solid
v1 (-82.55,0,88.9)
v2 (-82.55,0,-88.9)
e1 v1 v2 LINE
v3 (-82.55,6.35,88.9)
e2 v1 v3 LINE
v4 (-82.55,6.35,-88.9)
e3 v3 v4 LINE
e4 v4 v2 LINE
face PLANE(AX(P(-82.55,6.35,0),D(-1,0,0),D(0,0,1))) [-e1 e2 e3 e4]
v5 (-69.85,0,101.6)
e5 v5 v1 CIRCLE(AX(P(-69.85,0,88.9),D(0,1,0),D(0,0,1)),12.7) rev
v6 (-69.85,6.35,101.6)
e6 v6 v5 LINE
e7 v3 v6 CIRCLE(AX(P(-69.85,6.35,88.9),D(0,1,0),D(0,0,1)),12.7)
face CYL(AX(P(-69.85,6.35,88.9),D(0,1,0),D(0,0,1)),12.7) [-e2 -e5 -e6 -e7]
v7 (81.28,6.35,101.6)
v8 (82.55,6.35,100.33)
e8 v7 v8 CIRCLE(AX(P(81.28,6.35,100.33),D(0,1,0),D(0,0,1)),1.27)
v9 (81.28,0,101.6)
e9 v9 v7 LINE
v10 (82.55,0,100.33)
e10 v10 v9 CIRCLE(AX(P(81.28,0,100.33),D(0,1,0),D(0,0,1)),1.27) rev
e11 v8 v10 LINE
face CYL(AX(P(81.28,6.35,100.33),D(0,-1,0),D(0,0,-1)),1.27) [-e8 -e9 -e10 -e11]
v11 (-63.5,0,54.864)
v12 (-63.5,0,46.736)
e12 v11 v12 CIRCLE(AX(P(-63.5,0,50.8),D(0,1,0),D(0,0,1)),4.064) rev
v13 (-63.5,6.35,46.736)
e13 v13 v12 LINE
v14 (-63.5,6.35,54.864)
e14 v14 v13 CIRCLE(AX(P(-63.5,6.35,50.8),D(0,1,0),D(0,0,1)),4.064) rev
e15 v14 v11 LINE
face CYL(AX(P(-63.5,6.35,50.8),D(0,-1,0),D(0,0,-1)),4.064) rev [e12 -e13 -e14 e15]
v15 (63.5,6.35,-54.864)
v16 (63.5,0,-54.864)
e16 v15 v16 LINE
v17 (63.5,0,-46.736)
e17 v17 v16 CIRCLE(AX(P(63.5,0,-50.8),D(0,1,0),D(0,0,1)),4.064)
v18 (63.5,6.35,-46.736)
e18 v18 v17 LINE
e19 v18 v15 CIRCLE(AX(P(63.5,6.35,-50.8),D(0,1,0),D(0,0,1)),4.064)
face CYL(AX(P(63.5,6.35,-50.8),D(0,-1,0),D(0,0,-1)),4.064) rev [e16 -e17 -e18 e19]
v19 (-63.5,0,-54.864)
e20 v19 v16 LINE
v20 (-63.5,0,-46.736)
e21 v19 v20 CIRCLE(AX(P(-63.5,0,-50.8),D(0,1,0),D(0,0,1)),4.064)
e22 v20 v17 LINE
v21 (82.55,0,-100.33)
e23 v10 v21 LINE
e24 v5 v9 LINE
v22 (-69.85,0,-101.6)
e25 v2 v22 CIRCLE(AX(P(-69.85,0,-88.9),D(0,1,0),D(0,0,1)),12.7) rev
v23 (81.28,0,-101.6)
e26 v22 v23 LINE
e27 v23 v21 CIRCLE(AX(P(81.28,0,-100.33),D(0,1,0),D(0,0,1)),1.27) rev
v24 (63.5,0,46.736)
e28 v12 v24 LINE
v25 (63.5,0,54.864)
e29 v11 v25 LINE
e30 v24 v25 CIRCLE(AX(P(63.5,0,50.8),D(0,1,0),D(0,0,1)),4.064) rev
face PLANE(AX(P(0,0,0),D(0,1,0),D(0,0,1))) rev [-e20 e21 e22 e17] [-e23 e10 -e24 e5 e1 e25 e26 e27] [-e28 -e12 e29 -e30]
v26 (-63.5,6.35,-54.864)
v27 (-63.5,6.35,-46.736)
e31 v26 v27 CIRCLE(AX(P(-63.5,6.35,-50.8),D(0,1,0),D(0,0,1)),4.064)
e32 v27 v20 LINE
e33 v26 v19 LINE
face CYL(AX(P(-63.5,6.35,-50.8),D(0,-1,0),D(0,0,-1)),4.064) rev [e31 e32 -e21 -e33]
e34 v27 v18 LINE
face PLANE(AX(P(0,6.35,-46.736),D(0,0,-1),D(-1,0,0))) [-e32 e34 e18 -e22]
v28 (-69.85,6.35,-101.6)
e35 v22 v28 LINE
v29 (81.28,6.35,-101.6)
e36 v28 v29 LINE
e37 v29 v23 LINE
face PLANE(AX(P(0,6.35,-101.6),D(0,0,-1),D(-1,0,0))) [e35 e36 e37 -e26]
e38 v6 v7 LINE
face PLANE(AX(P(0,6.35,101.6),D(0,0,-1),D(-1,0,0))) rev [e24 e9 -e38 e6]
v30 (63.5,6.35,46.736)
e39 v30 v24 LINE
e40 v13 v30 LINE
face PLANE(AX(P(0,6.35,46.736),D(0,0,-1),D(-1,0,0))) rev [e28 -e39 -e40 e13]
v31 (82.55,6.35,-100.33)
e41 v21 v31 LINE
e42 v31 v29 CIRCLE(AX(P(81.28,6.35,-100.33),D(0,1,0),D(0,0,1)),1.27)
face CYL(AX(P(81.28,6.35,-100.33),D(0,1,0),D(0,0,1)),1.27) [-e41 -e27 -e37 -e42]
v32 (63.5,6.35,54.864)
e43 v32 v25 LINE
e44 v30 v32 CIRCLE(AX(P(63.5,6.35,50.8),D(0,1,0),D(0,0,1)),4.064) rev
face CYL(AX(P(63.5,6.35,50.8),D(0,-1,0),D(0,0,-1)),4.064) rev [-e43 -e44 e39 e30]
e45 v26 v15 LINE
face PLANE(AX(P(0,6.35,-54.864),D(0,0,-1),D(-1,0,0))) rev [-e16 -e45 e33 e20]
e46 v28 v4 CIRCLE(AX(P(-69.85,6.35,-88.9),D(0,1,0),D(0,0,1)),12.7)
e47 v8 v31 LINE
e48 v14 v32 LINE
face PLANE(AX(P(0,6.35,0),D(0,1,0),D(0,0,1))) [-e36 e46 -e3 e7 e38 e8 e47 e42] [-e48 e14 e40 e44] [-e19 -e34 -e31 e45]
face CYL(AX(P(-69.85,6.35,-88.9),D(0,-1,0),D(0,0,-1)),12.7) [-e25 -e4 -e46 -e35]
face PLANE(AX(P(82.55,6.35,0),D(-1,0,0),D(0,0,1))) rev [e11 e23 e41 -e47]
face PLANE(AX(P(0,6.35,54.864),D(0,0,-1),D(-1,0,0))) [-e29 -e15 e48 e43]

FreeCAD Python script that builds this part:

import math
import FreeCAD as App
import Part
import Sketcher

V = App.Vector
Q = App.Units.Quantity


def edges_at(feature, points):
    """Names of the edges that pass closest to the given points."""
    edges = feature.Shape.Edges
    near = lambda p: min(range(len(edges)), key=lambda i: edges[i].distToShape(Part.Vertex(*p))[0])
    return sorted({f"Edge{near(p) + 1}" for p in points})


def add_polygon(sketch, points):
    """Adds a closed chain of lines whose ends are joined by coincident constraints."""
    first, n = sketch.GeometryCount, len(points)
    for a, b in zip(points, points[1:] + points[:1]):
        sketch.addGeometry(Part.LineSegment(App.Vector(*a, 0), App.Vector(*b, 0)), False)
    for i in range(n):
        sketch.addConstraint(Sketcher.Constraint("Coincident", first + i, 2, first + (i + 1) % n, 1))

doc = App.newDocument("Part")
body = doc.addObject("PartDesign::Body", "Body")

# Sketch on XZ plane
sketch1 = doc.addObject("Sketcher::SketchObject", "Sketch")
body.addObject(sketch1)
sketch1.AttachmentSupport = (doc.XZ_Plane, [""])
sketch1.MapMode = "FlatFace"
add_polygon(sketch1, [(-82.55, -101.6), (-82.55, 101.6), (82.55, 101.6), (82.55, -101.6)])  # lines 0-3
sketch1.addGeometry(Part.ArcOfCircle(Part.Circle(V(63.5, 50.8, 0), V(0, 0, 1), 4.064), math.radians(-90), math.radians(0)), False)  # 4
sketch1.addGeometry(Part.ArcOfCircle(Part.Circle(V(63.5, 50.8, 0), V(0, 0, 1), 4.064), math.radians(0), math.radians(90)), False)  # 5
sketch1.addGeometry(Part.LineSegment(V(63.5, 54.864, 0), V(-63.5, 54.864, 0)), False)  # 6
sketch1.addGeometry(Part.ArcOfCircle(Part.Circle(V(-63.5, 50.8, 0), V(0, 0, 1), 4.064), math.radians(90), math.radians(270)), False)  # 7
sketch1.addGeometry(Part.LineSegment(V(-63.5, 46.736, 0), V(63.5, 46.736, 0)), False)  # 8
sketch1.addGeometry(Part.LineSegment(V(63.5, -46.736, 0), V(-63.5, -46.736, 0)), False)  # 9
sketch1.addGeometry(Part.ArcOfCircle(Part.Circle(V(-63.5, -50.8, 0), V(0, 0, 1), 4.064), math.radians(90), math.radians(270)), False)  # 10
sketch1.addGeometry(Part.LineSegment(V(-63.5, -54.864, 0), V(63.5, -54.864, 0)), False)  # 11
sketch1.addGeometry(Part.ArcOfCircle(Part.Circle(V(63.5, -50.8, 0), V(0, 0, 1), 4.064), math.radians(-90), math.radians(0)), False)  # 12
sketch1.addGeometry(Part.ArcOfCircle(Part.Circle(V(63.5, -50.8, 0), V(0, 0, 1), 4.064), math.radians(0), math.radians(90)), False)  # 13
sketch1.addConstraint([
    Sketcher.Constraint("Tangent", 4, 2, 5, 1),
    Sketcher.Constraint("Tangent", 5, 2, 6, 1),
    Sketcher.Constraint("Tangent", 6, 2, 7, 1),
    Sketcher.Constraint("Tangent", 7, 2, 8, 1),
    Sketcher.Constraint("Tangent", 8, 2, 4, 1),
    Sketcher.Constraint("Tangent", 9, 2, 10, 1),
    Sketcher.Constraint("Tangent", 10, 2, 11, 1),
    Sketcher.Constraint("Tangent", 11, 2, 12, 1),
    Sketcher.Constraint("Tangent", 12, 2, 13, 1),
    Sketcher.Constraint("Tangent", 13, 2, 9, 1),
    Sketcher.Constraint("Vertical", 0),
    Sketcher.Constraint("Horizontal", 1),
    Sketcher.Constraint("Vertical", 2),
    Sketcher.Constraint("Horizontal", 3),
    Sketcher.Constraint("Horizontal", 6),
    Sketcher.Constraint("Horizontal", 8),
    Sketcher.Constraint("Horizontal", 9),
    Sketcher.Constraint("Horizontal", 11),
    Sketcher.Constraint("Equal", 4, 5),
    Sketcher.Constraint("Equal", 7, 10),
    Sketcher.Constraint("Equal", 10, 12),
    Sketcher.Constraint("Symmetric", 4, 3, 10, 3, -1, 1),
    Sketcher.Constraint("Symmetric", 0, 2, 2, 2, -1, 1),
    Sketcher.Constraint("Symmetric", 4, 2, 12, 2, -1),
    Sketcher.Constraint("Horizontal", 7, 3, 4, 2),
    Sketcher.Constraint("Vertical", 7, 3, 10, 3),
    Sketcher.Constraint("DistanceX", 6, 2, 6, 1, Q("5 in")),
    Sketcher.Constraint("DistanceY", 0, 1, 0, 2, Q("8 in")),
    Sketcher.Constraint("Radius", 4, Q("0.16 in")),
    Sketcher.Constraint("DistanceX", 1, 1, 1, 2, Q("6.5 in")),
    Sketcher.Constraint("DistanceY", -1, 1, 4, 3, Q("2 in")),
])
pad1 = doc.addObject("PartDesign::Pad", "Pad")
body.addObject(pad1)
pad1.Profile = sketch1
pad1.Length = Q("0.25 in")
pad1.Reversed = True
doc.recompute()

fillet = doc.addObject("PartDesign::Fillet", "Fillet")
body.addObject(fillet)
fillet.Base = (pad1, edges_at(pad1, [(-82.55, 3.175, 101.6), (-82.55, 3.175, -101.6)]))
fillet.Radius = Q("0.5 in")
doc.recompute()

fillet2 = doc.addObject("PartDesign::Fillet", "Fillet001")
body.addObject(fillet2)
fillet2.Base = (fillet, edges_at(fillet, [(82.55, 3.175, -101.6), (82.55, 3.175, 101.6)]))
fillet2.Radius = Q("0.05 in")

doc.recompute()
